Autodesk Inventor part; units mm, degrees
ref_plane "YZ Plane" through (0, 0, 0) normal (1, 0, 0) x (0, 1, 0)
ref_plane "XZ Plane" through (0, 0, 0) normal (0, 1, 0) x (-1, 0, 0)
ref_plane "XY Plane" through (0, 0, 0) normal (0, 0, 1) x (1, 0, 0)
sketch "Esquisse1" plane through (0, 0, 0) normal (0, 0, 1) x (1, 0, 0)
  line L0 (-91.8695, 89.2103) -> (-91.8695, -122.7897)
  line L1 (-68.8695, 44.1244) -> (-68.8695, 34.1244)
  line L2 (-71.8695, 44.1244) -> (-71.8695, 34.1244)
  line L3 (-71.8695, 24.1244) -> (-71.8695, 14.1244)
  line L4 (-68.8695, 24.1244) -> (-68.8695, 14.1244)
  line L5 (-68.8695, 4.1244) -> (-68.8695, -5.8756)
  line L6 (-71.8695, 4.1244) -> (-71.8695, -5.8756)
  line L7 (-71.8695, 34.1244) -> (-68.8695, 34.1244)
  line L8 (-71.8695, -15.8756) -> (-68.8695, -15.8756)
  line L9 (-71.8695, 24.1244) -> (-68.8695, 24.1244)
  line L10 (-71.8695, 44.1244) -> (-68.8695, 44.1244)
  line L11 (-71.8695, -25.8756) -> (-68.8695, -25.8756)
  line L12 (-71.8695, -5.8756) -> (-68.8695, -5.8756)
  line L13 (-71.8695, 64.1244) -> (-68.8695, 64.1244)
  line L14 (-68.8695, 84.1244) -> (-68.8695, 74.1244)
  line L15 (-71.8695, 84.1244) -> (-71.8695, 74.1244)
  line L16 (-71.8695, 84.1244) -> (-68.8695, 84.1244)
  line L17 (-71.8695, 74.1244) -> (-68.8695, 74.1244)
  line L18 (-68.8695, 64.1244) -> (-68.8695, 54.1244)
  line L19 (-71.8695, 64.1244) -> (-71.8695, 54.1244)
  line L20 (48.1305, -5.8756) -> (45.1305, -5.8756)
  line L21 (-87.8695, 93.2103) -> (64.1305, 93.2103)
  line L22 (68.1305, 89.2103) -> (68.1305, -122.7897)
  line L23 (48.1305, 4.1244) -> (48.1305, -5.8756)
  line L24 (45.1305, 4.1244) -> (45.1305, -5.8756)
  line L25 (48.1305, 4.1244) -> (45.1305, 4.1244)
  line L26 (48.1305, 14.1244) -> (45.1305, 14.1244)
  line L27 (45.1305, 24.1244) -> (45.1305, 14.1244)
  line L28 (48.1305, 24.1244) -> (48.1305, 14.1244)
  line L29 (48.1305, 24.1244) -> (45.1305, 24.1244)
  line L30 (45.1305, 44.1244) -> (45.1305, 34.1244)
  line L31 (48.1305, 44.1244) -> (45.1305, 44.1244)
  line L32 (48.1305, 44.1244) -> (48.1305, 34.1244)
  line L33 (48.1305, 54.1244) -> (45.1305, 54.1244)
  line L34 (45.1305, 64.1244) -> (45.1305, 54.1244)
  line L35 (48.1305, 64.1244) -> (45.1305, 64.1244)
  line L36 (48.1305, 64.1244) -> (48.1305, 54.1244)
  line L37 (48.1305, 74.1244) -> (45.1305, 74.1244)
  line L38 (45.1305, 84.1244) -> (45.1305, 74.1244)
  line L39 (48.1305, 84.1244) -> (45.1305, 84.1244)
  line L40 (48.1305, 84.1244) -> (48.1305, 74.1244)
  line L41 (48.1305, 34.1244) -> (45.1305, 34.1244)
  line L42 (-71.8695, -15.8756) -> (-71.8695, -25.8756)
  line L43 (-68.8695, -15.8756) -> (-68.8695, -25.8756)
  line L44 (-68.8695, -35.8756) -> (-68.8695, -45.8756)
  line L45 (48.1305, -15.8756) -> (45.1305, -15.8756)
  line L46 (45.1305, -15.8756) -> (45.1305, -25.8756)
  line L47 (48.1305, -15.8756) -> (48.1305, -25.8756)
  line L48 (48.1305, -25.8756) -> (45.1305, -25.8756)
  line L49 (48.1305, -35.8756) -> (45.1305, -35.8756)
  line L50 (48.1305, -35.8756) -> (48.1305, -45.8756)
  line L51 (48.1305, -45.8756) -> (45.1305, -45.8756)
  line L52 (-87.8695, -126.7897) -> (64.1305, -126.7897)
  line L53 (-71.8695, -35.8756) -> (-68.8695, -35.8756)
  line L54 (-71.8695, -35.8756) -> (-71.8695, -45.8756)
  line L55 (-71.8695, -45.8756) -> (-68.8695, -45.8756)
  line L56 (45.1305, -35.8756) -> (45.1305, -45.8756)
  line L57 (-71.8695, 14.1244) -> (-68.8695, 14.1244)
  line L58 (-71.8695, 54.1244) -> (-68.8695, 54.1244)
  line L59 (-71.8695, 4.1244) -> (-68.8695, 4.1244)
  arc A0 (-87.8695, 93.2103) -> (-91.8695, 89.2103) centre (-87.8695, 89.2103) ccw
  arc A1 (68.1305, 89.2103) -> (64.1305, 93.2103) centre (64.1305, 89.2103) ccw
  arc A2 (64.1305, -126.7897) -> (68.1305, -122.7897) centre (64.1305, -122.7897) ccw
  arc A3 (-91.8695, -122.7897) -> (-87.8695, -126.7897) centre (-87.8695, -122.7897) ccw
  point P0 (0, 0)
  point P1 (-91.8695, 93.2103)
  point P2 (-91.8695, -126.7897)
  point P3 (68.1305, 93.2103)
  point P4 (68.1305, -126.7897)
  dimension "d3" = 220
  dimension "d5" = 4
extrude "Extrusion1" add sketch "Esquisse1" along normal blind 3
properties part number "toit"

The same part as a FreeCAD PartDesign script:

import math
import FreeCAD as App
import Part
import Sketcher


def add_polygon(sketch, points):
    """Adds a closed chain of lines whose ends are joined by coincident constraints."""
    first, n = sketch.GeometryCount, len(points)
    for a, b in zip(points, points[1:] + points[:1]):
        sketch.addGeometry(Part.LineSegment(App.Vector(*a, 0), App.Vector(*b, 0)), False)
    for i in range(n):
        sketch.addConstraint(Sketcher.Constraint("Coincident", first + i, 2, first + (i + 1) % n, 1))

doc = App.newDocument("Part")
body = doc.addObject("PartDesign::Body", "Body")

sketch1 = body.newObject("Sketcher::SketchObject", "Sketch")
sketch1.AttachmentSupport = (doc.getObject("XY_Plane"), [""])
sketch1.MapMode = "FlatFace"
sketch1.addGeometry(Part.ArcOfCircle(Part.Circle(App.Vector(-87.8695, 89.2103, 0), App.Vector(0, 0, 1), 4), math.radians(90), math.radians(180)), False)
sketch1.addGeometry(Part.LineSegment(App.Vector(-91.8695, 89.2103, 0), App.Vector(-91.8695, -122.7897, 0)), False)
sketch1.addGeometry(Part.ArcOfCircle(Part.Circle(App.Vector(-87.8695, -122.7897, 0), App.Vector(0, 0, 1), 4), math.radians(180), math.radians(270)), False)
sketch1.addGeometry(Part.LineSegment(App.Vector(-87.8695, -126.7897, 0), App.Vector(64.1305, -126.7897, 0)), False)
sketch1.addGeometry(Part.ArcOfCircle(Part.Circle(App.Vector(64.1305, -122.7897, 0), App.Vector(0, 0, 1), 4), math.radians(-90), math.radians(0)), False)
sketch1.addGeometry(Part.LineSegment(App.Vector(68.1305, -122.7897, 0), App.Vector(68.1305, 89.2103, 0)), False)
sketch1.addGeometry(Part.ArcOfCircle(Part.Circle(App.Vector(64.1305, 89.2103, 0), App.Vector(0, 0, 1), 4), math.radians(0), math.radians(90)), False)
sketch1.addGeometry(Part.LineSegment(App.Vector(64.1305, 93.2103, 0), App.Vector(-87.8695, 93.2103, 0)), False)
add_polygon(sketch1, [(-71.8695, -35.8756), (-68.8695, -35.8756), (-68.8695, -45.8756), (-71.8695, -45.8756)])
add_polygon(sketch1, [(-71.8695, -25.8756), (-71.8695, -15.8756), (-68.8695, -15.8756), (-68.8695, -25.8756)])
add_polygon(sketch1, [(45.1305, -35.8756), (48.1305, -35.8756), (48.1305, -45.8756), (45.1305, -45.8756)])
add_polygon(sketch1, [(45.1305, -15.8756), (48.1305, -15.8756), (48.1305, -25.8756), (45.1305, -25.8756)])
add_polygon(sketch1, [(-71.8695, 4.1244), (-68.8695, 4.1244), (-68.8695, -5.8756), (-71.8695, -5.8756)])
add_polygon(sketch1, [(-71.8695, 14.1244), (-71.8695, 24.1244), (-68.8695, 24.1244), (-68.8695, 14.1244)])
add_polygon(sketch1, [(-71.8695, 44.1244), (-68.8695, 44.1244), (-68.8695, 34.1244), (-71.8695, 34.1244)])
add_polygon(sketch1, [(-71.8695, 54.1244), (-71.8695, 64.1244), (-68.8695, 64.1244), (-68.8695, 54.1244)])
add_polygon(sketch1, [(-71.8695, 84.1244), (-68.8695, 84.1244), (-68.8695, 74.1244), (-71.8695, 74.1244)])
add_polygon(sketch1, [(48.1305, 4.1244), (48.1305, -5.8756), (45.1305, -5.8756), (45.1305, 4.1244)])
add_polygon(sketch1, [(48.1305, 24.1244), (48.1305, 14.1244), (45.1305, 14.1244), (45.1305, 24.1244)])
add_polygon(sketch1, [(45.1305, 34.1244), (45.1305, 44.1244), (48.1305, 44.1244), (48.1305, 34.1244)])
add_polygon(sketch1, [(48.1305, 64.1244), (48.1305, 54.1244), (45.1305, 54.1244), (45.1305, 64.1244)])
add_polygon(sketch1, [(48.1305, 84.1244), (48.1305, 74.1244), (45.1305, 74.1244), (45.1305, 84.1244)])
sketch1.addConstraint(Sketcher.Constraint("Tangent", 0, 2, 1, 1))
sketch1.addConstraint(Sketcher.Constraint("Tangent", 1, 2, 2, 1))
sketch1.addConstraint(Sketcher.Constraint("Tangent", 2, 2, 3, 1))
sketch1.addConstraint(Sketcher.Constraint("Tangent", 3, 2, 4, 1))
sketch1.addConstraint(Sketcher.Constraint("Tangent", 4, 2, 5, 1))
sketch1.addConstraint(Sketcher.Constraint("Tangent", 5, 2, 6, 1))
sketch1.addConstraint(Sketcher.Constraint("Tangent", 6, 2, 7, 1))
sketch1.addConstraint(Sketcher.Constraint("Tangent", 7, 2, 0, 1))
sketch1.addConstraint(Sketcher.Constraint("Vertical", 1))
sketch1.addConstraint(Sketcher.Constraint("Horizontal", 3))
sketch1.addConstraint(Sketcher.Constraint("Vertical", 5))
sketch1.addConstraint(Sketcher.Constraint("Horizontal", 7))
sketch1.addConstraint(Sketcher.Constraint("Horizontal", 8))
sketch1.addConstraint(Sketcher.Constraint("Vertical", 9))
sketch1.addConstraint(Sketcher.Constraint("Horizontal", 10))
sketch1.addConstraint(Sketcher.Constraint("Vertical", 11))
sketch1.addConstraint(Sketcher.Constraint("Vertical", 12))
sketch1.addConstraint(Sketcher.Constraint("Horizontal", 13))
sketch1.addConstraint(Sketcher.Constraint("Vertical", 14))
sketch1.addConstraint(Sketcher.Constraint("Horizontal", 15))
sketch1.addConstraint(Sketcher.Constraint("Horizontal", 16))
sketch1.addConstraint(Sketcher.Constraint("Vertical", 17))
sketch1.addConstraint(Sketcher.Constraint("Horizontal", 18))
sketch1.addConstraint(Sketcher.Constraint("Vertical", 19))
sketch1.addConstraint(Sketcher.Constraint("Horizontal", 20))
sketch1.addConstraint(Sketcher.Constraint("Vertical", 21))
sketch1.addConstraint(Sketcher.Constraint("Horizontal", 22))
sketch1.addConstraint(Sketcher.Constraint("Vertical", 23))
sketch1.addConstraint(Sketcher.Constraint("Horizontal", 24))
sketch1.addConstraint(Sketcher.Constraint("Vertical", 25))
sketch1.addConstraint(Sketcher.Constraint("Horizontal", 26))
sketch1.addConstraint(Sketcher.Constraint("Vertical", 27))
sketch1.addConstraint(Sketcher.Constraint("Vertical", 28))
sketch1.addConstraint(Sketcher.Constraint("Horizontal", 29))
sketch1.addConstraint(Sketcher.Constraint("Vertical", 30))
sketch1.addConstraint(Sketcher.Constraint("Horizontal", 31))
sketch1.addConstraint(Sketcher.Constraint("Horizontal", 32))
sketch1.addConstraint(Sketcher.Constraint("Vertical", 33))
sketch1.addConstraint(Sketcher.Constraint("Horizontal", 34))
sketch1.addConstraint(Sketcher.Constraint("Vertical", 35))
sketch1.addConstraint(Sketcher.Constraint("Vertical", 36))
sketch1.addConstraint(Sketcher.Constraint("Horizontal", 37))
sketch1.addConstraint(Sketcher.Constraint("Vertical", 38))
sketch1.addConstraint(Sketcher.Constraint("Horizontal", 39))
sketch1.addConstraint(Sketcher.Constraint("Horizontal", 40))
sketch1.addConstraint(Sketcher.Constraint("Vertical", 41))
sketch1.addConstraint(Sketcher.Constraint("Horizontal", 42))
sketch1.addConstraint(Sketcher.Constraint("Vertical", 43))
sketch1.addConstraint(Sketcher.Constraint("Vertical", 44))
sketch1.addConstraint(Sketcher.Constraint("Horizontal", 45))
sketch1.addConstraint(Sketcher.Constraint("Vertical", 46))
sketch1.addConstraint(Sketcher.Constraint("Horizontal", 47))
sketch1.addConstraint(Sketcher.Constraint("Vertical", 48))
sketch1.addConstraint(Sketcher.Constraint("Horizontal", 49))
sketch1.addConstraint(Sketcher.Constraint("Vertical", 50))
sketch1.addConstraint(Sketcher.Constraint("Horizontal", 51))
sketch1.addConstraint(Sketcher.Constraint("Vertical", 52))
sketch1.addConstraint(Sketcher.Constraint("Horizontal", 53))
sketch1.addConstraint(Sketcher.Constraint("Vertical", 54))
sketch1.addConstraint(Sketcher.Constraint("Horizontal", 55))
sketch1.addConstraint(Sketcher.Constraint("Vertical", 56))
sketch1.addConstraint(Sketcher.Constraint("Horizontal", 57))
sketch1.addConstraint(Sketcher.Constraint("Vertical", 58))
sketch1.addConstraint(Sketcher.Constraint("Horizontal", 59))
sketch1.addConstraint(Sketcher.Constraint("Vertical", 60))
sketch1.addConstraint(Sketcher.Constraint("Horizontal", 61))
sketch1.addConstraint(Sketcher.Constraint("Vertical", 62))
sketch1.addConstraint(Sketcher.Constraint("Horizontal", 63))
sketch1.addConstraint(Sketcher.Constraint("Equal", 0, 2))
sketch1.addConstraint(Sketcher.Constraint("Equal", 2, 4))
sketch1.addConstraint(Sketcher.Constraint("Equal", 4, 6))
sketch1.addConstraint(Sketcher.Constraint("Horizontal", 11, 2, 16, 2))
sketch1.addConstraint(Sketcher.Constraint("Horizontal", 10, 2, 17, 2))
sketch1.addConstraint(Sketcher.Constraint("Horizontal", 13, 2, 20, 2))
sketch1.addConstraint(Sketcher.Constraint("Horizontal", 15, 2, 21, 2))
sketch1.addConstraint(Sketcher.Constraint("Horizontal", 26, 2, 44, 2))
sketch1.addConstraint(Sketcher.Constraint("Horizontal", 27, 2, 46, 2))
sketch1.addConstraint(Sketcher.Constraint("Horizontal", 31, 2, 48, 2))
sketch1.addConstraint(Sketcher.Constraint("Horizontal", 29, 2, 50, 2))
sketch1.addConstraint(Sketcher.Constraint("Horizontal", 35, 2, 52, 2))
sketch1.addConstraint(Sketcher.Constraint("Horizontal", 34, 2, 54, 2))
sketch1.addConstraint(Sketcher.Constraint("Horizontal", 39, 2, 56, 2))
sketch1.addConstraint(Sketcher.Constraint("Horizontal", 37, 2, 58, 2))
sketch1.addConstraint(Sketcher.Constraint("Horizontal", 42, 2, 60, 2))
sketch1.addConstraint(Sketcher.Constraint("Horizontal", 43, 2, 62, 2))
sketch1.addConstraint(Sketcher.Constraint("Vertical", 11, 2, 12, 2))
sketch1.addConstraint(Sketcher.Constraint("Vertical", 9, 2, 13, 2))
sketch1.addConstraint(Sketcher.Constraint("Vertical", 17, 2, 20, 2))
sketch1.addConstraint(Sketcher.Constraint("Vertical", 19, 2, 22, 2))
sketch1.addConstraint(Sketcher.Constraint("Vertical", 14, 2, 24, 2))
sketch1.addConstraint(Sketcher.Constraint("Vertical", 15, 2, 26, 2))
sketch1.addConstraint(Sketcher.Constraint("Vertical", 27, 2, 28, 2))
sketch1.addConstraint(Sketcher.Constraint("Vertical", 25, 2, 29, 2))
sketch1.addConstraint(Sketcher.Constraint("Vertical", 30, 2, 32, 2))
sketch1.addConstraint(Sketcher.Constraint("Vertical", 31, 2, 34, 2))
sketch1.addConstraint(Sketcher.Constraint("Vertical", 35, 2, 36, 2))
sketch1.addConstraint(Sketcher.Constraint("Vertical", 33, 2, 37, 2))
sketch1.addConstraint(Sketcher.Constraint("Vertical", 38, 2, 40, 2))
sketch1.addConstraint(Sketcher.Constraint("Vertical", 39, 2, 42, 2))
sketch1.addConstraint(Sketcher.Constraint("Vertical", 21, 2, 44, 2))
sketch1.addConstraint(Sketcher.Constraint("Vertical", 23, 2, 45, 2))
sketch1.addConstraint(Sketcher.Constraint("Vertical", 47, 2, 48, 2))
sketch1.addConstraint(Sketcher.Constraint("Vertical", 46, 2, 49, 2))
sketch1.addConstraint(Sketcher.Constraint("Vertical", 50, 2, 52, 2))
sketch1.addConstraint(Sketcher.Constraint("Vertical", 51, 2, 53, 2))
sketch1.addConstraint(Sketcher.Constraint("Vertical", 54, 2, 56, 2))
sketch1.addConstraint(Sketcher.Constraint("Vertical", 55, 2, 57, 2))
sketch1.addConstraint(Sketcher.Constraint("Vertical", 59, 2, 60, 2))
sketch1.addConstraint(Sketcher.Constraint("Vertical", 58, 2, 61, 2))
sketch1.addConstraint(Sketcher.Constraint("Equal", 15, 16))
sketch1.addConstraint(Sketcher.Constraint("Equal", 11, 12))
sketch1.addConstraint(Sketcher.Constraint("Equal", 23, 25))
sketch1.addConstraint(Sketcher.Constraint("Equal", 27, 28))
sketch1.addConstraint(Sketcher.Constraint("Equal", 30, 33))
sketch1.addConstraint(Sketcher.Constraint("Equal", 35, 36))
sketch1.addConstraint(Sketcher.Constraint("Equal", 38, 41))
sketch1.addConstraint(Sketcher.Constraint("Radius", 0, 4.0))
sketch1.addConstraint(Sketcher.Constraint("DistanceX", 3, 1, 3, 2, 152.0))
sketch1.addConstraint(Sketcher.Constraint("DistanceX", 8, 1, 8, 2, 3.0))
sketch1.addConstraint(Sketcher.Constraint("DistanceY", 1, 2, 1, 1, 212.0))
sketch1.addConstraint(Sketcher.Constraint("DistanceY", 9, 2, 9, 1, 10.0))
sketch1.addConstraint(Sketcher.Constraint("DistanceX", 0, 3, -1, 1, 87.8695))
sketch1.addConstraint(Sketcher.Constraint("DistanceY", -1, 1, 0, 3, 89.2103))
sketch1.addConstraint(Sketcher.Constraint("DistanceX", 8, 2, -1, 1, 68.8695))
sketch1.addConstraint(Sketcher.Constraint("DistanceY", 8, 2, -1, 1, 35.8756))
sketch1.addConstraint(Sketcher.Constraint("DistanceY", 12, 2, -1, 1, 15.8756))
sketch1.addConstraint(Sketcher.Constraint("DistanceX", -1, 1, 16, 2, 48.1305))
sketch1.addConstraint(Sketcher.Constraint("DistanceY", -1, 1, 24, 2, 4.1244))
sketch1.addConstraint(Sketcher.Constraint("DistanceY", -1, 1, 28, 2, 24.1244))
sketch1.addConstraint(Sketcher.Constraint("DistanceY", -1, 1, 32, 2, 44.1244))
sketch1.addConstraint(Sketcher.Constraint("DistanceY", -1, 1, 36, 2, 64.1244))
sketch1.addConstraint(Sketcher.Constraint("DistanceY", -1, 1, 40, 2, 84.1244))
pad1 = body.newObject("PartDesign::Pad", "Pad")
pad1.Profile = sketch1
pad1.Length = 3

doc.recompute()
